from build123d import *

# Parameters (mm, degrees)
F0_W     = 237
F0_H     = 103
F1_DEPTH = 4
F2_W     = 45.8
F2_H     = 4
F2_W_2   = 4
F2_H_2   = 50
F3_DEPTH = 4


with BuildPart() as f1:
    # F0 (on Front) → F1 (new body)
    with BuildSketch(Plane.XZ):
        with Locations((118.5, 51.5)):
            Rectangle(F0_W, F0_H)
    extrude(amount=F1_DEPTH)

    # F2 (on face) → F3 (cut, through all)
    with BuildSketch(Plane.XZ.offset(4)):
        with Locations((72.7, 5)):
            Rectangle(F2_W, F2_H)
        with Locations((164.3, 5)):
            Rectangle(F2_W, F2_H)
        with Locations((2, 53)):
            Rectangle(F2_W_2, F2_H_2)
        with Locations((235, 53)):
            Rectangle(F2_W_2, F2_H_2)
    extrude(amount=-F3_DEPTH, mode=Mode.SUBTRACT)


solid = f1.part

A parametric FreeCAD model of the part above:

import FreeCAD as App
import Part
import Sketcher

V = App.Vector

doc = App.newDocument("Part")
body = doc.addObject("PartDesign::Body", "Body")

# Sketch on XZ plane
sketch1 = doc.addObject("Sketcher::SketchObject", "Sketch")
body.addObject(sketch1)
sketch1.AttachmentSupport = (doc.XZ_Plane, [""])
sketch1.MapMode = "FlatFace"
sketch1.addGeometry([
    Part.LineSegment(V(0, 103, 0), V(0, 0, 0)),
    Part.LineSegment(V(0, 0, 0), V(237, 0, 0)),
    Part.LineSegment(V(237, 0, 0), V(237, 103, 0)),
    Part.LineSegment(V(237, 103, 0), V(0, 103, 0)),
], False)
sketch1.addConstraint([
    Sketcher.Constraint("Coincident", 0, 2, 1, 1),
    Sketcher.Constraint("Coincident", 1, 2, 2, 1),
    Sketcher.Constraint("Coincident", 2, 2, 3, 1),
    Sketcher.Constraint("Coincident", 3, 2, 0, 1),
    Sketcher.Constraint("Vertical", 0),
    Sketcher.Constraint("Horizontal", 1),
    Sketcher.Constraint("Vertical", 2),
    Sketcher.Constraint("Horizontal", 3),
    Sketcher.Constraint("Coincident", 0, 2, -1, 1),
    Sketcher.Constraint("DistanceX", 1, 1, 1, 2, 237.0),
    Sketcher.Constraint("DistanceY", 0, 2, 0, 1, 103.0),
])
pad1 = doc.addObject("PartDesign::Pad", "Pad")
body.addObject(pad1)
pad1.Profile = sketch1
pad1.Length = 4

# Sketch on XZ plane
sketch2 = doc.addObject("Sketcher::SketchObject", "Sketch001")
body.addObject(sketch2)
sketch2.AttachmentSupport = (doc.XZ_Plane, [""])
sketch2.MapMode = "FlatFace"
sketch2.AttachmentOffset = App.Placement(V(0, 0, 4), App.Rotation())
sketch2.addGeometry([
    Part.LineSegment(V(49.8, 7, 0), V(49.8, 3, 0)),  # 0
    Part.LineSegment(V(49.8, 3, 0), V(95.6, 3, 0)),  # 1
    Part.LineSegment(V(95.6, 3, 0), V(95.6, 7, 0)),  # 2
    Part.LineSegment(V(95.6, 7, 0), V(49.8, 7, 0)),  # 3
    Part.LineSegment(V(141.4, 7, 0), V(141.4, 3, 0)),  # 4
    Part.LineSegment(V(141.4, 3, 0), V(187.2, 3, 0)),  # 5
    Part.LineSegment(V(187.2, 3, 0), V(187.2, 7, 0)),  # 6
    Part.LineSegment(V(187.2, 7, 0), V(141.4, 7, 0)),  # 7
    Part.LineSegment(V(0, 78, 0), V(0, 28, 0)),  # 8
    Part.LineSegment(V(0, 28, 0), V(4, 28, 0)),  # 9
    Part.LineSegment(V(4, 28, 0), V(4, 78, 0)),  # 10
    Part.LineSegment(V(4, 78, 0), V(0, 78, 0)),  # 11
    Part.LineSegment(V(233, 78, 0), V(233, 28, 0)),  # 12
    Part.LineSegment(V(233, 28, 0), V(237, 28, 0)),  # 13
    Part.LineSegment(V(237, 28, 0), V(237, 78, 0)),  # 14
    Part.LineSegment(V(237, 78, 0), V(233, 78, 0)),  # 15
], False)
sketch2.addConstraint([
    Sketcher.Constraint("Coincident", 0, 2, 1, 1),
    Sketcher.Constraint("Coincident", 1, 2, 2, 1),
    Sketcher.Constraint("Coincident", 2, 2, 3, 1),
    Sketcher.Constraint("Coincident", 3, 2, 0, 1),
    Sketcher.Constraint("Coincident", 4, 2, 5, 1),
    Sketcher.Constraint("Coincident", 5, 2, 6, 1),
    Sketcher.Constraint("Coincident", 6, 2, 7, 1),
    Sketcher.Constraint("Coincident", 7, 2, 4, 1),
    Sketcher.Constraint("Coincident", 8, 2, 9, 1),
    Sketcher.Constraint("Coincident", 9, 2, 10, 1),
    Sketcher.Constraint("Coincident", 10, 2, 11, 1),
    Sketcher.Constraint("Coincident", 11, 2, 8, 1),
    Sketcher.Constraint("Coincident", 12, 2, 13, 1),
    Sketcher.Constraint("Coincident", 13, 2, 14, 1),
    Sketcher.Constraint("Coincident", 14, 2, 15, 1),
    Sketcher.Constraint("Coincident", 15, 2, 12, 1),
    Sketcher.Constraint("Vertical", 0),
    Sketcher.Constraint("Horizontal", 1),
    Sketcher.Constraint("Vertical", 2),
    Sketcher.Constraint("Horizontal", 3),
    Sketcher.Constraint("Vertical", 4),
    Sketcher.Constraint("Horizontal", 5),
    Sketcher.Constraint("Vertical", 6),
    Sketcher.Constraint("Horizontal", 7),
    Sketcher.Constraint("Vertical", 8),
    Sketcher.Constraint("Horizontal", 9),
    Sketcher.Constraint("Vertical", 10),
    Sketcher.Constraint("Horizontal", 11),
    Sketcher.Constraint("Vertical", 12),
    Sketcher.Constraint("Horizontal", 13),
    Sketcher.Constraint("Vertical", 14),
    Sketcher.Constraint("Horizontal", 15),
    Sketcher.Constraint("PointOnObject", 8, 2, -2),
    Sketcher.Constraint("Horizontal", 1, 2, 4, 2),
    Sketcher.Constraint("Horizontal", 3, 2, 6, 2),
    Sketcher.Constraint("Horizontal", 9, 2, 12, 2),
    Sketcher.Constraint("Horizontal", 11, 2, 14, 2),
    Sketcher.Constraint("Equal", 3, 5),
    Sketcher.Constraint("Equal", 11, 13),
    Sketcher.Constraint("Equal", 15, 0),
    Sketcher.Constraint("DistanceX", 9, 1, 9, 2, 4.0),
    Sketcher.Constraint("DistanceY", 8, 2, 8, 1, 50.0),
    Sketcher.Constraint("DistanceX", 1, 1, 1, 2, 45.8),
    Sketcher.Constraint("DistanceY", -1, 1, 0, 2, 3.0),
    Sketcher.Constraint("DistanceY", -1, 1, 8, 2, 28.0),
    Sketcher.Constraint("DistanceX", -1, 1, 12, 2, 233.0),
    Sketcher.Constraint("DistanceX", -1, 1, 0, 2, 49.8),
    Sketcher.Constraint("DistanceX", -1, 1, 4, 2, 141.4),
])
pocket1 = doc.addObject("PartDesign::Pocket", "Pocket")
body.addObject(pocket1)
pocket1.Profile = sketch2
pocket1.Type = "ThroughAll"

doc.recompute()
